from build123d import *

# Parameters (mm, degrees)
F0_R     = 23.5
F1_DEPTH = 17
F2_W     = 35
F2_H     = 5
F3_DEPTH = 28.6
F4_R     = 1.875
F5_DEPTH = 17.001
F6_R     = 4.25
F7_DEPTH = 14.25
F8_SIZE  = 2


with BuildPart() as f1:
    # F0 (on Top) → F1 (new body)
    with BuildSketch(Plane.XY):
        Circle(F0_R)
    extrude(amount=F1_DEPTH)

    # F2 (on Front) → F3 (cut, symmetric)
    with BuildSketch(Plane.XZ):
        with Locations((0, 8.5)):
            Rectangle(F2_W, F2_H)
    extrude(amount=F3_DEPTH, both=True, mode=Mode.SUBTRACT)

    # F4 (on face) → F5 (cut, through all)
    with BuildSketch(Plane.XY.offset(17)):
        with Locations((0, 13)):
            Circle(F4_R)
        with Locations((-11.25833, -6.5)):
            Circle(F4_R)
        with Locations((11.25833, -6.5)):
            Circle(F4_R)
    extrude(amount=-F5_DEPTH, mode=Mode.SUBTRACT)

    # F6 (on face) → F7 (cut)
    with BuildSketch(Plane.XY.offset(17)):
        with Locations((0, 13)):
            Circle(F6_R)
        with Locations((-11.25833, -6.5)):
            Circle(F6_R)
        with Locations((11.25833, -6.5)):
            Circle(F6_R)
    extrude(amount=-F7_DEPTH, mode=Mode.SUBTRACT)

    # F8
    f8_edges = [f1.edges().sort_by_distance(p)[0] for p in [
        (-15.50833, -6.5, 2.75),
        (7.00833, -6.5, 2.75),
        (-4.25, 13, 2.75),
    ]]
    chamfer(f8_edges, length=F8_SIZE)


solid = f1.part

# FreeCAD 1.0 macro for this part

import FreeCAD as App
import Part
import Sketcher

V = App.Vector
Q = App.Units.Quantity


def edges_at(feature, points):
    """Names of the edges that pass closest to the given points."""
    edges = feature.Shape.Edges
    near = lambda p: min(range(len(edges)), key=lambda i: edges[i].distToShape(Part.Vertex(*p))[0])
    return sorted({f"Edge{near(p) + 1}" for p in points})


def add_polygon(sketch, points):
    """Adds a closed chain of lines whose ends are joined by coincident constraints."""
    first, n = sketch.GeometryCount, len(points)
    for a, b in zip(points, points[1:] + points[:1]):
        sketch.addGeometry(Part.LineSegment(App.Vector(*a, 0), App.Vector(*b, 0)), False)
    for i in range(n):
        sketch.addConstraint(Sketcher.Constraint("Coincident", first + i, 2, first + (i + 1) % n, 1))

doc = App.newDocument("Part")
body = doc.addObject("PartDesign::Body", "Body")

sketch1 = body.newObject("Sketcher::SketchObject", "Sketch")
sketch1.AttachmentSupport = (doc.getObject("XY_Plane"), [""])
sketch1.MapMode = "FlatFace"
sketch1.addGeometry(Part.Circle(V(0, 0, 0), V(0, 0, 1), 24), False)
sketch1.addConstraint([
    Sketcher.Constraint("Coincident", 0, 3, -1, 1),
    Sketcher.Constraint("Diameter", 0, Q("47 mm")),
])
pad1 = body.newObject("PartDesign::Pad", "Pad")
pad1.Profile = sketch1
pad1.Length = 17

sketch2 = body.newObject("Sketcher::SketchObject", "Sketch001")
sketch2.AttachmentSupport = (doc.getObject("XZ_Plane"), [""])
sketch2.MapMode = "FlatFace"
add_polygon(sketch2, [(-18, 11), (-18, 6), (18, 6), (18, 11)])
sketch2.addConstraint([
    Sketcher.Constraint("Vertical", 0),
    Sketcher.Constraint("Horizontal", 1),
    Sketcher.Constraint("Vertical", 2),
    Sketcher.Constraint("Horizontal", 3),
    Sketcher.Constraint("DistanceX", 1, 1, 1, 2, Q("35 mm")),
    Sketcher.Constraint("DistanceY", 0, 2, 0, 1, Q("5 mm")),
    Sketcher.Constraint("DistanceY", -1, 1, 0, 2, Q("6 mm")),
    Sketcher.Constraint("DistanceX", 0, 2, -1, 1, Q("17.5 mm")),
])
pocket1 = body.newObject("PartDesign::Pocket", "Pocket")
pocket1.Profile = sketch2
pocket1.Length = 57.2
pocket1.Midplane = True

sketch3 = body.newObject("Sketcher::SketchObject", "Sketch002")
sketch3.AttachmentSupport = (doc.getObject("XY_Plane"), [""])
sketch3.MapMode = "FlatFace"
sketch3.AttachmentOffset = App.Placement(V(0, 0, 17), App.Rotation())
sketch3.addGeometry([
    Part.Circle(V(0, 13, 0), V(0, 0, 1), 1.9),
    Part.Circle(V(-11.3, -6.5, 0), V(0, 0, 1), 1.9),
    Part.Circle(V(11.3, -6.5, 0), V(0, 0, 1), 1.9),
], False)
sketch3.addConstraint([
    Sketcher.Constraint("Equal", 0, 1),
    Sketcher.Constraint("Equal", 1, 2),
    Sketcher.Constraint("Symmetric", 1, 3, 2, 3, -2),
    Sketcher.Constraint("PointOnObject", 0, 3, -2),
    Sketcher.Constraint("Diameter", 0, Q("3.75 mm")),
    Sketcher.Constraint("DistanceY", -1, 1, 0, 3, Q("13 mm")),
    Sketcher.Constraint("DistanceY", 1, 3, -1, 1, Q("6.5 mm")),
    Sketcher.Constraint("DistanceX", 1, 3, -1, 1, Q("11.25833 mm")),
])
pocket2 = body.newObject("PartDesign::Pocket", "Pocket001")
pocket2.Profile = sketch3
pocket2.Type = "ThroughAll"

sketch4 = body.newObject("Sketcher::SketchObject", "Sketch003")
sketch4.AttachmentSupport = (doc.getObject("XY_Plane"), [""])
sketch4.MapMode = "FlatFace"
sketch4.AttachmentOffset = App.Placement(V(0, 0, 17), App.Rotation())
sketch4.addGeometry([
    Part.Circle(V(0, 13, 0), V(0, 0, 1), 4.2),
    Part.Circle(V(-11.3, -6.5, 0), V(0, 0, 1), 4.2),
    Part.Circle(V(11.3, -6.5, 0), V(0, 0, 1), 4.2),
], False)
sketch4.addConstraint([
    Sketcher.Constraint("Equal", 0, 1),
    Sketcher.Constraint("Equal", 1, 2),
    Sketcher.Constraint("Symmetric", 1, 3, 2, 3, -2),
    Sketcher.Constraint("PointOnObject", 0, 3, -2),
    Sketcher.Constraint("Diameter", 0, Q("8.5 mm")),
    Sketcher.Constraint("DistanceY", -1, 1, 0, 3, Q("13 mm")),
    Sketcher.Constraint("DistanceY", 1, 3, -1, 1, Q("6.5 mm")),
    Sketcher.Constraint("DistanceX", 1, 3, -1, 1, Q("11.25833 mm")),
])
pocket3 = body.newObject("PartDesign::Pocket", "Pocket002")
pocket3.Profile = sketch4
pocket3.Length = 14.25
doc.recompute()

chamfer = body.newObject("PartDesign::Chamfer", "Chamfer")
chamfer.Base = (pocket3, edges_at(pocket3, [(-15.508, -6.5, 2.75), (7.008, -6.5, 2.75), (-4.25, 13, 2.75)]))
chamfer.Size = 2

doc.recompute()
